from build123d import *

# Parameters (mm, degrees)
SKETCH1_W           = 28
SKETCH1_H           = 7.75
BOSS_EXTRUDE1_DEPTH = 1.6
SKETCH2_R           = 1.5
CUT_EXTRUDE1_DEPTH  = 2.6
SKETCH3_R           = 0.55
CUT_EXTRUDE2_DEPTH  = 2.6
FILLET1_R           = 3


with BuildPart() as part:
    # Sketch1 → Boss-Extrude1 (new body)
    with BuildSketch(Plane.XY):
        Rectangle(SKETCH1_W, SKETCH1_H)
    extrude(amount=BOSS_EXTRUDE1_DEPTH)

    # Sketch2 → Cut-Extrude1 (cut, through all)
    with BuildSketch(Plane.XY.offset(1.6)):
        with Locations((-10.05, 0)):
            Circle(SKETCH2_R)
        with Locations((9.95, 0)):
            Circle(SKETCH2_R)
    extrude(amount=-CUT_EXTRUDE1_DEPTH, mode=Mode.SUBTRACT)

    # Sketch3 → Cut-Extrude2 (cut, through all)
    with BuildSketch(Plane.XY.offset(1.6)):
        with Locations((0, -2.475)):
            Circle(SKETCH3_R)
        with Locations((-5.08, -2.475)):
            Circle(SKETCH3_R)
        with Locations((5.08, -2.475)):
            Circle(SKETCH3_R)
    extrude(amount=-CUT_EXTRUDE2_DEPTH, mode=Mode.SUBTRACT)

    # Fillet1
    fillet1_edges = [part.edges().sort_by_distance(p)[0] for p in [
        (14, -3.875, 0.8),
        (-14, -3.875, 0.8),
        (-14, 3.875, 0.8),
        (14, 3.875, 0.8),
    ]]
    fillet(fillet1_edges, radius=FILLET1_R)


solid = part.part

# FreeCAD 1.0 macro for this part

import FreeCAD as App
import Part
import Sketcher
from FreeCAD import Vector


def edges_at(feature, points):
    """Names of the edges that pass closest to the given points."""
    edges = feature.Shape.Edges
    near = lambda p: min(range(len(edges)), key=lambda i: edges[i].distToShape(Part.Vertex(*p))[0])
    return sorted({f"Edge{near(p) + 1}" for p in points})


def add_polygon(sketch, points):
    """Adds a closed chain of lines whose ends are joined by coincident constraints."""
    first, n = sketch.GeometryCount, len(points)
    for a, b in zip(points, points[1:] + points[:1]):
        sketch.addGeometry(Part.LineSegment(App.Vector(*a, 0), App.Vector(*b, 0)), False)
    for i in range(n):
        sketch.addConstraint(Sketcher.Constraint("Coincident", first + i, 2, first + (i + 1) % n, 1))

doc = App.newDocument("Part")
body = doc.addObject("PartDesign::Body", "Body")

# Sketch on XY plane
sketch1 = body.newObject("Sketcher::SketchObject", "Sketch")
sketch1.AttachmentSupport = (doc.getObject("XY_Plane"), [""])
sketch1.MapMode = "FlatFace"
add_polygon(sketch1, [(-14, 4), (-14, -4), (14, -4), (14, 4)])  # lines 0-3
sketch1.addConstraint(Sketcher.Constraint("Vertical", 0))
sketch1.addConstraint(Sketcher.Constraint("Horizontal", 1))
sketch1.addConstraint(Sketcher.Constraint("Vertical", 2))
sketch1.addConstraint(Sketcher.Constraint("Horizontal", 3))
sketch1.addConstraint(Sketcher.Constraint("Symmetric", 0, 2, 2, 2, -1, 1))
sketch1.addConstraint(Sketcher.Constraint("DistanceX", 1, 1, 1, 2, 28.0))
sketch1.addConstraint(Sketcher.Constraint("DistanceY", 0, 2, 0, 1, 7.75))
pad1 = body.newObject("PartDesign::Pad", "Pad")
pad1.Profile = sketch1
pad1.Length = 1.6

# Sketch on XY plane
sketch2 = body.newObject("Sketcher::SketchObject", "Sketch001")
sketch2.AttachmentSupport = (doc.getObject("XY_Plane"), [""])
sketch2.MapMode = "FlatFace"
sketch2.AttachmentOffset = App.Placement(Vector(0, 0, 1.6), App.Rotation())
sketch2.addGeometry(Part.Circle(Vector(-10.1, 0, 0), Vector(0, 0, 1), 1.5), False)
sketch2.addGeometry(Part.Circle(Vector(9.9, 0, 0), Vector(0, 0, 1), 1.5), False)
sketch2.addConstraint(Sketcher.Constraint("Equal", 0, 1))
sketch2.addConstraint(Sketcher.Constraint("PointOnObject", 0, 3, -1))
sketch2.addConstraint(Sketcher.Constraint("PointOnObject", 1, 3, -1))
sketch2.addConstraint(Sketcher.Constraint("Diameter", 0, 3.0))
sketch2.addConstraint(Sketcher.Constraint("DistanceX", 0, 3, 1, 3, 20.0))
sketch2.addConstraint(Sketcher.Constraint("DistanceX", 0, 3, -1, 1, 10.05))
pocket1 = body.newObject("PartDesign::Pocket", "Pocket")
pocket1.Profile = sketch2
pocket1.Type = "ThroughAll"

# Sketch on XY plane
sketch3 = body.newObject("Sketcher::SketchObject", "Sketch002")
sketch3.AttachmentSupport = (doc.getObject("XY_Plane"), [""])
sketch3.MapMode = "FlatFace"
sketch3.AttachmentOffset = App.Placement(Vector(0, 0, 1.6), App.Rotation())
sketch3.addGeometry(Part.Circle(Vector(0, -2.5, 0), Vector(0, 0, 1), 0.6), False)
sketch3.addGeometry(Part.Circle(Vector(-5.1, -2.5, 0), Vector(0, 0, 1), 0.6), False)
sketch3.addGeometry(Part.Circle(Vector(5.1, -2.5, 0), Vector(0, 0, 1), 0.6), False)
sketch3.addConstraint(Sketcher.Constraint("Equal", 0, 1))
sketch3.addConstraint(Sketcher.Constraint("Equal", 1, 2))
sketch3.addConstraint(Sketcher.Constraint("Symmetric", 1, 3, 2, 3, -2))
sketch3.addConstraint(Sketcher.Constraint("PointOnObject", 0, 3, -2))
sketch3.addConstraint(Sketcher.Constraint("Horizontal", 0, 3, 1, 3))
sketch3.addConstraint(Sketcher.Constraint("Diameter", 0, 1.1))
sketch3.addConstraint(Sketcher.Constraint("DistanceX", 1, 3, -1, 1, 5.08))
sketch3.addConstraint(Sketcher.Constraint("DistanceY", 0, 3, -1, 1, 2.475))
pocket2 = body.newObject("PartDesign::Pocket", "Pocket001")
pocket2.Profile = sketch3
pocket2.Type = "ThroughAll"
doc.recompute()

fillet = body.newObject("PartDesign::Fillet", "Fillet")
fillet.Base = (pocket2, edges_at(pocket2, [
    (14, -3.875, 0.8),
    (-14, -3.875, 0.8),
    (-14, 3.875, 0.8),
    (14, 3.875, 0.8),
]))
fillet.Radius = 3

doc.recompute()
